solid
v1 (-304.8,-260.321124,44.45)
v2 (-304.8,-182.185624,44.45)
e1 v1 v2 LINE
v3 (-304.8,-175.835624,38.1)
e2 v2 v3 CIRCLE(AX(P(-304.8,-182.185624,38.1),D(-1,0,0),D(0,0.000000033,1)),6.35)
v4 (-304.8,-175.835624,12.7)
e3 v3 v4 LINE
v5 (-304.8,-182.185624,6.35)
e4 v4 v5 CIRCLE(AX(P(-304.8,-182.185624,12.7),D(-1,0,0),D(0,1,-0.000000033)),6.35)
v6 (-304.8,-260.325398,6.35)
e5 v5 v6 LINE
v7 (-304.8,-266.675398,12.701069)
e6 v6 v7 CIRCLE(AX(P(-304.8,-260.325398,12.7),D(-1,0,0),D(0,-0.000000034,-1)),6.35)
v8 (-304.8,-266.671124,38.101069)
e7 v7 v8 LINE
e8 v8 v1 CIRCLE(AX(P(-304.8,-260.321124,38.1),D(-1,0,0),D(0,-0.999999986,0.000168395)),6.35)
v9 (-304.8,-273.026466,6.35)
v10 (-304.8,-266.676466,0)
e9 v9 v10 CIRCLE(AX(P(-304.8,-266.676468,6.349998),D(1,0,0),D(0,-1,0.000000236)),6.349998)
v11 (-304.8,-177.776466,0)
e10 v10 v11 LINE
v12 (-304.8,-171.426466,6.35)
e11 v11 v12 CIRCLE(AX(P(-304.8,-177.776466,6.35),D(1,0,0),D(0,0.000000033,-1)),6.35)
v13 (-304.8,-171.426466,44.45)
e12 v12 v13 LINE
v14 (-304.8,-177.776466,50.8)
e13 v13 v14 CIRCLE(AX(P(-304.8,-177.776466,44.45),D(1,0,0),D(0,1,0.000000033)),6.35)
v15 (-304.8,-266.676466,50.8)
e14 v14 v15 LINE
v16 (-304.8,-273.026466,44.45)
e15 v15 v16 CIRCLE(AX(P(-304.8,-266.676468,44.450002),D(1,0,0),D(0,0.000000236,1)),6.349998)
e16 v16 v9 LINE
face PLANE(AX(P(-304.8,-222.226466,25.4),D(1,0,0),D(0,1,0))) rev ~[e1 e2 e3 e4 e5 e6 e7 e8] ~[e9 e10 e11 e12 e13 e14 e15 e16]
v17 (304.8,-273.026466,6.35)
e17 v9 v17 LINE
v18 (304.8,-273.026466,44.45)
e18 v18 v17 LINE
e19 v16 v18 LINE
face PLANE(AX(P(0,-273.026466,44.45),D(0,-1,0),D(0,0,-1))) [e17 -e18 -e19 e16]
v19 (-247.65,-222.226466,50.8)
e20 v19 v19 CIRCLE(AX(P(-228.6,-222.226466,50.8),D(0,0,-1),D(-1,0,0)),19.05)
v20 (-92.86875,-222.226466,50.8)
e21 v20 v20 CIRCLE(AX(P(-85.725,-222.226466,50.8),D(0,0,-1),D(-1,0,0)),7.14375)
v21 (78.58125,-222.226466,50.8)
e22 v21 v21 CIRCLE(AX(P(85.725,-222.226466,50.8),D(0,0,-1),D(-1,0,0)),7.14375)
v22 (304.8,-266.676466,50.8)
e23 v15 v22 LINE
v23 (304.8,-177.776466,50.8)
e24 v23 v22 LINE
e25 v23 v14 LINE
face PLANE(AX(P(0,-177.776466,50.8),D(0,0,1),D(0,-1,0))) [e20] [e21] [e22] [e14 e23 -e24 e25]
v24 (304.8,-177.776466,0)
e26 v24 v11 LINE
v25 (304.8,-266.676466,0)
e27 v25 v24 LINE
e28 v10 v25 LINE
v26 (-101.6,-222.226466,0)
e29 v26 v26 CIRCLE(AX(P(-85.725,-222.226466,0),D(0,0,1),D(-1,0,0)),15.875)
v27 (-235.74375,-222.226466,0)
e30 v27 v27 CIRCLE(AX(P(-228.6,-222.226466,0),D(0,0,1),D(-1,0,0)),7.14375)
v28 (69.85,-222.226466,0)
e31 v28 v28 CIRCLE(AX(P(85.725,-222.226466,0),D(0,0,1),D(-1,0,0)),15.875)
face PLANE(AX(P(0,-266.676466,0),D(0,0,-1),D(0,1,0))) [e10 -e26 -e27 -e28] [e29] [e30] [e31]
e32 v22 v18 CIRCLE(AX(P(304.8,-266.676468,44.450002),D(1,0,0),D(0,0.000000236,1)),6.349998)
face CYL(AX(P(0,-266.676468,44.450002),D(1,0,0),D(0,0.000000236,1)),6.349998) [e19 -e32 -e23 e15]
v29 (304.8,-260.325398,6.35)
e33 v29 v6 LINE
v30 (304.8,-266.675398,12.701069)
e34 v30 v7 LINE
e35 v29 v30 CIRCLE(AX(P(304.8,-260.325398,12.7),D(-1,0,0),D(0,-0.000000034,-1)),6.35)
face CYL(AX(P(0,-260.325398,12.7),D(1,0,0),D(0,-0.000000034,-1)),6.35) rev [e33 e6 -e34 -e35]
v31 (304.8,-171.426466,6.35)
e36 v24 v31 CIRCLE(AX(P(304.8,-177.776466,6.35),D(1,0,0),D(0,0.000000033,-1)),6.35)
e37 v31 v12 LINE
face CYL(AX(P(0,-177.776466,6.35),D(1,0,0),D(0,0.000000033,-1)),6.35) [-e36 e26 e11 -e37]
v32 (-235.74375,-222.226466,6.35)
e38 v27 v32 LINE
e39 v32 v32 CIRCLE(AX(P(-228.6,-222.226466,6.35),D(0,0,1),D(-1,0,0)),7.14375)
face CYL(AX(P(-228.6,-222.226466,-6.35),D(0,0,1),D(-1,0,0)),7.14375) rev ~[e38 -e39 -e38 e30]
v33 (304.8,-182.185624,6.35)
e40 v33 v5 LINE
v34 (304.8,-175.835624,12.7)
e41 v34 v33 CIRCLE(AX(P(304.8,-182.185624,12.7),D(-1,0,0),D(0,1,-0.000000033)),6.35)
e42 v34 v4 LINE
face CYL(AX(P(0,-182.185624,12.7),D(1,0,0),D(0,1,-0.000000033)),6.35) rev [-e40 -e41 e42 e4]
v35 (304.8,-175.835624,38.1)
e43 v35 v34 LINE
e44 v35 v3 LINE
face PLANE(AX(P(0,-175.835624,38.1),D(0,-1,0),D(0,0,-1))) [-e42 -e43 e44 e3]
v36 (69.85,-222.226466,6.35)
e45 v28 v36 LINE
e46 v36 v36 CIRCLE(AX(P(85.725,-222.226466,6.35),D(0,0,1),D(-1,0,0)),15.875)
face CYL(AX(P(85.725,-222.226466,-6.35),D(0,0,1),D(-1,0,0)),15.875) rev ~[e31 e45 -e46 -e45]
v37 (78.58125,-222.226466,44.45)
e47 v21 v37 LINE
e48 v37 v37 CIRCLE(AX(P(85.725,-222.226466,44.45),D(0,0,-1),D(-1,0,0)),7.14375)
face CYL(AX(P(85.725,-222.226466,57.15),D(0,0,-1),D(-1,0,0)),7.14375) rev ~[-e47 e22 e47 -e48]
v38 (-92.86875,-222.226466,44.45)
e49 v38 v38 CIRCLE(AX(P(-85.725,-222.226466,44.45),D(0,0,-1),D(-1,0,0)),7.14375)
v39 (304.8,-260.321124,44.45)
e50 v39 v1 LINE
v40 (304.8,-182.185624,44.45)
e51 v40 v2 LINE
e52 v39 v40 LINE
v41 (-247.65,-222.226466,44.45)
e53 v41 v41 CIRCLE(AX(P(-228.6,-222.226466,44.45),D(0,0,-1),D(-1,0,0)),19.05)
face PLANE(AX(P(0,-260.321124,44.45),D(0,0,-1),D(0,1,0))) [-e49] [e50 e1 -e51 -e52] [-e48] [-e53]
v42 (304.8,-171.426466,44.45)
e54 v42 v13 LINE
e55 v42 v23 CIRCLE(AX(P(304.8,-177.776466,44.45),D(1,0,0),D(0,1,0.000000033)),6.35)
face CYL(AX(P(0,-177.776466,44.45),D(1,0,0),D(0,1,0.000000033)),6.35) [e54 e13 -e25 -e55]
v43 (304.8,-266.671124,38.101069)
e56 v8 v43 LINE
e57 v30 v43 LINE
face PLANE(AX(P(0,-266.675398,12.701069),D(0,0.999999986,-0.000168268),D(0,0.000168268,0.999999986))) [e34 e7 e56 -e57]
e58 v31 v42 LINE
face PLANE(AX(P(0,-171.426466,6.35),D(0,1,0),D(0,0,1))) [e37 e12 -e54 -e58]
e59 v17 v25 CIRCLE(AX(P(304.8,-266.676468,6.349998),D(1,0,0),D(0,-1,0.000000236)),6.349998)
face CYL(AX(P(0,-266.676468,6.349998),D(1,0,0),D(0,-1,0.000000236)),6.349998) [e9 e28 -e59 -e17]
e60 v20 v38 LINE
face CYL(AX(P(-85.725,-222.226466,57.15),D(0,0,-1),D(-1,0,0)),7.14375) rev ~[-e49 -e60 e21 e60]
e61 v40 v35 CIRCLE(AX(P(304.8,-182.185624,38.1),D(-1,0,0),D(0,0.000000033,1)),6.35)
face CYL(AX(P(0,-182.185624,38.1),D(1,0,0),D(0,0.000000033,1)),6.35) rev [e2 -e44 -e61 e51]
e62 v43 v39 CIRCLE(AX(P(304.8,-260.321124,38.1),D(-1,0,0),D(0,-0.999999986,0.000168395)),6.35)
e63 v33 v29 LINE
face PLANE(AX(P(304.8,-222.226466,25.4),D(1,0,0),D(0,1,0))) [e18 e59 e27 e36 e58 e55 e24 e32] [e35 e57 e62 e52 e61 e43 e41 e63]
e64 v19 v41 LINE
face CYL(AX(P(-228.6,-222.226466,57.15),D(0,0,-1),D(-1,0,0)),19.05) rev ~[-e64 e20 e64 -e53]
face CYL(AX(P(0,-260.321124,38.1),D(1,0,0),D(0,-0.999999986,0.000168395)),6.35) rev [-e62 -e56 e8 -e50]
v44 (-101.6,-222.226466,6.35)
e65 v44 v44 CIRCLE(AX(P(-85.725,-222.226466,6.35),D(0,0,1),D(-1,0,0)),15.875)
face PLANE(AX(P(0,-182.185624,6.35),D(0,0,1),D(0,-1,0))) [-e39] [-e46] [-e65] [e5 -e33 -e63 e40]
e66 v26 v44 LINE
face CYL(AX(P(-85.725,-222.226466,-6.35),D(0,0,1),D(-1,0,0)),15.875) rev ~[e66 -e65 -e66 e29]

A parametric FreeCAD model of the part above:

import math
import FreeCAD as App
import Part
import Sketcher
from FreeCAD import Vector
Q = App.Units.Quantity

doc = App.newDocument("Part")
body = doc.addObject("PartDesign::Body", "Body")

# Sketch on YZ plane
sketch1 = body.newObject("Sketcher::SketchObject", "Sketch")
sketch1.AttachmentSupport = (doc.getObject("YZ_Plane"), [""])
sketch1.MapMode = "FlatFace"
sketch1.addGeometry([
    Part.LineSegment(Vector(-178, 51, 0), Vector(-267, 51, 0)),  # 0
    Part.ArcOfCircle(Part.Circle(Vector(-267, 44, 0), Vector(0, 0, 1), 6), math.radians(90), math.radians(180)),  # 1
    Part.LineSegment(Vector(-273, 44, 0), Vector(-273, 6, 0)),  # 2
    Part.ArcOfCircle(Part.Circle(Vector(-267, 6, 0), Vector(0, 0, 1), 6), math.radians(180), math.radians(270)),  # 3
    Part.LineSegment(Vector(-267, 0, 0), Vector(-178, 0, 0)),  # 4
    Part.ArcOfCircle(Part.Circle(Vector(-178, 6, 0), Vector(0, 0, 1), 6), math.radians(-90), math.radians(0)),  # 5
    Part.LineSegment(Vector(-171, 6, 0), Vector(-171, 44, 0)),  # 6
    Part.ArcOfCircle(Part.Circle(Vector(-178, 44, 0), Vector(0, 0, 1), 6), math.radians(0), math.radians(90)),  # 7
    Part.LineSegment(Vector(-267, 13, 0), Vector(-267, 38, 0)),  # 8
    Part.ArcOfCircle(Part.Circle(Vector(-260, 38, 0), Vector(0, 0, 1), 6), math.radians(90), math.radians(180)),  # 9
    Part.LineSegment(Vector(-260, 44, 0), Vector(-182, 44, 0)),  # 10
    Part.ArcOfCircle(Part.Circle(Vector(-182, 38, 0), Vector(0, 0, 1), 6), math.radians(0), math.radians(90)),  # 11
    Part.LineSegment(Vector(-176, 38, 0), Vector(-176, 13, 0)),  # 12
    Part.ArcOfCircle(Part.Circle(Vector(-182, 13, 0), Vector(0, 0, 1), 6), math.radians(-90), math.radians(0)),  # 13
    Part.LineSegment(Vector(-182, 6, 0), Vector(-260, 6, 0)),  # 14
    Part.ArcOfCircle(Part.Circle(Vector(-260, 13, 0), Vector(0, 0, 1), 6), math.radians(180), math.radians(270)),  # 15
], False)
sketch1.addConstraint([
    Sketcher.Constraint("Tangent", 0, 2, 1, 1),
    Sketcher.Constraint("Tangent", 1, 2, 2, 1),
    Sketcher.Constraint("Tangent", 2, 2, 3, 1),
    Sketcher.Constraint("Tangent", 3, 2, 4, 1),
    Sketcher.Constraint("Tangent", 4, 2, 5, 1),
    Sketcher.Constraint("Tangent", 5, 2, 6, 1),
    Sketcher.Constraint("Tangent", 6, 2, 7, 1),
    Sketcher.Constraint("Tangent", 7, 2, 0, 1),
    Sketcher.Constraint("Tangent", 8, 2, 9, 2),
    Sketcher.Constraint("Tangent", 9, 1, 10, 1),
    Sketcher.Constraint("Tangent", 10, 2, 11, 2),
    Sketcher.Constraint("Tangent", 11, 1, 12, 1),
    Sketcher.Constraint("Tangent", 12, 2, 13, 2),
    Sketcher.Constraint("Tangent", 13, 1, 14, 1),
    Sketcher.Constraint("Tangent", 14, 2, 15, 2),
    Sketcher.Constraint("Tangent", 15, 1, 8, 1),
    Sketcher.Constraint("Horizontal", 0),
    Sketcher.Constraint("Vertical", 2),
    Sketcher.Constraint("Horizontal", 4),
    Sketcher.Constraint("Vertical", 6),
    Sketcher.Constraint("Horizontal", 10),
    Sketcher.Constraint("Vertical", 12),
    Sketcher.Constraint("Horizontal", 14),
    Sketcher.Constraint("Equal", 1, 3),
    Sketcher.Constraint("Equal", 3, 5),
    Sketcher.Constraint("Equal", 5, 7),
    Sketcher.Constraint("Equal", 7, 9),
    Sketcher.Constraint("Equal", 9, 11),
    Sketcher.Constraint("Equal", 11, 13),
    Sketcher.Constraint("Equal", 13, 15),
    Sketcher.Constraint("PointOnObject", 3, 2, -1),
    Sketcher.Constraint("Horizontal", 6, 2, 9, 1),
    Sketcher.Constraint("Horizontal", 5, 2, 13, 1),
    Sketcher.Constraint("DistanceY", 12, 2, 12, 1, Q("1 in")),
    Sketcher.Constraint("Radius", 1, Q("0.2499999 in")),
    Sketcher.Constraint("DistanceX", 0, 2, 0, 1, Q("3.5 in")),
    Sketcher.Constraint("DistanceX", 10, 1, 10, 2, 78.1355),
    Sketcher.Constraint("DistanceX", 14, 2, -1, 1, 260.325398),
    Sketcher.Constraint("DistanceX", 14, 2, 14, 1, 78.139774),
    Sketcher.Constraint("DistanceX", 3, 3, 15, 3, 6.35107),
])
pad1 = body.newObject("PartDesign::Pad", "Pad")
pad1.Profile = sketch1
pad1.Length = Q("24 in")
pad1.Midplane = True

# Sketch on XY plane
sketch2 = body.newObject("Sketcher::SketchObject", "Sketch001")
sketch2.AttachmentSupport = (doc.getObject("XY_Plane"), [""])
sketch2.MapMode = "FlatFace"
sketch2.AttachmentOffset = App.Placement(Vector(0, 0, 2 * 25.4), App.Rotation())
sketch2.addGeometry([
    Part.Circle(Vector(-86, -222, 0), Vector(0, 0, 1), 7),
    Part.Circle(Vector(86, -222, 0), Vector(0, 0, 1), 7),
], False)
sketch2.addConstraint([
    Sketcher.Constraint("Equal", 0, 1),
    Sketcher.Constraint("Symmetric", 0, 3, 1, 3, -2),
    Sketcher.Constraint("Diameter", 0, Q("0.5625 in")),
    Sketcher.Constraint("DistanceX", 0, 3, 1, 3, Q("6.75 in")),
    Sketcher.Constraint("DistanceY", 0, 3, -1, 1, 222.226466),
])
doc.recompute()
hole = body.newObject("PartDesign::Hole", "Hole")
hole.Profile = sketch2
hole.ThreadType = "None"
hole.Diameter = Q("0.5625 in")
hole.DepthType = "Dimension"
hole.Depth = Q("0.25 in")
hole.DrillPoint = "Flat"

# Sketch on XY plane
sketch3 = body.newObject("Sketcher::SketchObject", "Sketch002")
sketch3.AttachmentSupport = (doc.getObject("XY_Plane"), [""])
sketch3.MapMode = "FlatFace"
sketch3.AttachmentOffset = App.Placement(Vector(0, 0, 2 * 25.4), App.Rotation())
sketch3.addGeometry(Part.Circle(Vector(-229, -222, 0), Vector(0, 0, 1), 19), False)
sketch3.addConstraint([
    Sketcher.Constraint("Diameter", 0, Q("1.5 in")),
    Sketcher.Constraint("DistanceX", 0, 3, -1, 1, Q("9 in")),
    Sketcher.Constraint("DistanceY", 0, 3, -1, 1, 222.226466),
])
doc.recompute()
hole2 = body.newObject("PartDesign::Hole", "Hole001")
hole2.Profile = sketch3
hole2.ThreadType = "None"
hole2.Diameter = Q("1.5 in")
hole2.DepthType = "Dimension"
hole2.Depth = Q("0.25 in")
hole2.DrillPoint = "Flat"

# Sketch on XY plane
sketch4 = body.newObject("Sketcher::SketchObject", "Sketch003")
sketch4.AttachmentSupport = (doc.getObject("XY_Plane"), [""])
sketch4.MapMode = "FlatFace"
sketch4.addGeometry(Part.Circle(Vector(-229, -222, 0), Vector(0, 0, 1), 7), False)
sketch4.addConstraint([
    Sketcher.Constraint("Diameter", 0, Q("0.5625 in")),
    Sketcher.Constraint("DistanceX", 0, 3, -1, 1, Q("9 in")),
    Sketcher.Constraint("DistanceY", 0, 3, -1, 1, 222.226466),
])
doc.recompute()
hole3 = body.newObject("PartDesign::Hole", "Hole002")
hole3.Profile = sketch4
hole3.ThreadType = "None"
hole3.Diameter = Q("0.5625 in")
hole3.DepthType = "Dimension"
hole3.Depth = Q("0.25 in")
hole3.DrillPoint = "Flat"
hole3.Reversed = True

# Sketch on XY plane
sketch5 = body.newObject("Sketcher::SketchObject", "Sketch004")
sketch5.AttachmentSupport = (doc.getObject("XY_Plane"), [""])
sketch5.MapMode = "FlatFace"
sketch5.addGeometry([
    Part.Circle(Vector(-86, -222, 0), Vector(0, 0, 1), 16),
    Part.Circle(Vector(86, -222, 0), Vector(0, 0, 1), 16),
], False)
sketch5.addConstraint([
    Sketcher.Constraint("Equal", 0, 1),
    Sketcher.Constraint("Symmetric", 0, 3, 1, 3, -2),
    Sketcher.Constraint("Diameter", 0, Q("1.25 in")),
    Sketcher.Constraint("DistanceX", 0, 3, 1, 3, Q("6.75 in")),
    Sketcher.Constraint("DistanceY", 0, 3, -1, 1, 222.226466),
])
doc.recompute()
hole4 = body.newObject("PartDesign::Hole", "Hole003")
hole4.Profile = sketch5
hole4.ThreadType = "None"
hole4.Diameter = Q("1.25 in")
hole4.DepthType = "Dimension"
hole4.Depth = Q("0.25 in")
hole4.DrillPoint = "Flat"
hole4.Reversed = True

doc.recompute()
